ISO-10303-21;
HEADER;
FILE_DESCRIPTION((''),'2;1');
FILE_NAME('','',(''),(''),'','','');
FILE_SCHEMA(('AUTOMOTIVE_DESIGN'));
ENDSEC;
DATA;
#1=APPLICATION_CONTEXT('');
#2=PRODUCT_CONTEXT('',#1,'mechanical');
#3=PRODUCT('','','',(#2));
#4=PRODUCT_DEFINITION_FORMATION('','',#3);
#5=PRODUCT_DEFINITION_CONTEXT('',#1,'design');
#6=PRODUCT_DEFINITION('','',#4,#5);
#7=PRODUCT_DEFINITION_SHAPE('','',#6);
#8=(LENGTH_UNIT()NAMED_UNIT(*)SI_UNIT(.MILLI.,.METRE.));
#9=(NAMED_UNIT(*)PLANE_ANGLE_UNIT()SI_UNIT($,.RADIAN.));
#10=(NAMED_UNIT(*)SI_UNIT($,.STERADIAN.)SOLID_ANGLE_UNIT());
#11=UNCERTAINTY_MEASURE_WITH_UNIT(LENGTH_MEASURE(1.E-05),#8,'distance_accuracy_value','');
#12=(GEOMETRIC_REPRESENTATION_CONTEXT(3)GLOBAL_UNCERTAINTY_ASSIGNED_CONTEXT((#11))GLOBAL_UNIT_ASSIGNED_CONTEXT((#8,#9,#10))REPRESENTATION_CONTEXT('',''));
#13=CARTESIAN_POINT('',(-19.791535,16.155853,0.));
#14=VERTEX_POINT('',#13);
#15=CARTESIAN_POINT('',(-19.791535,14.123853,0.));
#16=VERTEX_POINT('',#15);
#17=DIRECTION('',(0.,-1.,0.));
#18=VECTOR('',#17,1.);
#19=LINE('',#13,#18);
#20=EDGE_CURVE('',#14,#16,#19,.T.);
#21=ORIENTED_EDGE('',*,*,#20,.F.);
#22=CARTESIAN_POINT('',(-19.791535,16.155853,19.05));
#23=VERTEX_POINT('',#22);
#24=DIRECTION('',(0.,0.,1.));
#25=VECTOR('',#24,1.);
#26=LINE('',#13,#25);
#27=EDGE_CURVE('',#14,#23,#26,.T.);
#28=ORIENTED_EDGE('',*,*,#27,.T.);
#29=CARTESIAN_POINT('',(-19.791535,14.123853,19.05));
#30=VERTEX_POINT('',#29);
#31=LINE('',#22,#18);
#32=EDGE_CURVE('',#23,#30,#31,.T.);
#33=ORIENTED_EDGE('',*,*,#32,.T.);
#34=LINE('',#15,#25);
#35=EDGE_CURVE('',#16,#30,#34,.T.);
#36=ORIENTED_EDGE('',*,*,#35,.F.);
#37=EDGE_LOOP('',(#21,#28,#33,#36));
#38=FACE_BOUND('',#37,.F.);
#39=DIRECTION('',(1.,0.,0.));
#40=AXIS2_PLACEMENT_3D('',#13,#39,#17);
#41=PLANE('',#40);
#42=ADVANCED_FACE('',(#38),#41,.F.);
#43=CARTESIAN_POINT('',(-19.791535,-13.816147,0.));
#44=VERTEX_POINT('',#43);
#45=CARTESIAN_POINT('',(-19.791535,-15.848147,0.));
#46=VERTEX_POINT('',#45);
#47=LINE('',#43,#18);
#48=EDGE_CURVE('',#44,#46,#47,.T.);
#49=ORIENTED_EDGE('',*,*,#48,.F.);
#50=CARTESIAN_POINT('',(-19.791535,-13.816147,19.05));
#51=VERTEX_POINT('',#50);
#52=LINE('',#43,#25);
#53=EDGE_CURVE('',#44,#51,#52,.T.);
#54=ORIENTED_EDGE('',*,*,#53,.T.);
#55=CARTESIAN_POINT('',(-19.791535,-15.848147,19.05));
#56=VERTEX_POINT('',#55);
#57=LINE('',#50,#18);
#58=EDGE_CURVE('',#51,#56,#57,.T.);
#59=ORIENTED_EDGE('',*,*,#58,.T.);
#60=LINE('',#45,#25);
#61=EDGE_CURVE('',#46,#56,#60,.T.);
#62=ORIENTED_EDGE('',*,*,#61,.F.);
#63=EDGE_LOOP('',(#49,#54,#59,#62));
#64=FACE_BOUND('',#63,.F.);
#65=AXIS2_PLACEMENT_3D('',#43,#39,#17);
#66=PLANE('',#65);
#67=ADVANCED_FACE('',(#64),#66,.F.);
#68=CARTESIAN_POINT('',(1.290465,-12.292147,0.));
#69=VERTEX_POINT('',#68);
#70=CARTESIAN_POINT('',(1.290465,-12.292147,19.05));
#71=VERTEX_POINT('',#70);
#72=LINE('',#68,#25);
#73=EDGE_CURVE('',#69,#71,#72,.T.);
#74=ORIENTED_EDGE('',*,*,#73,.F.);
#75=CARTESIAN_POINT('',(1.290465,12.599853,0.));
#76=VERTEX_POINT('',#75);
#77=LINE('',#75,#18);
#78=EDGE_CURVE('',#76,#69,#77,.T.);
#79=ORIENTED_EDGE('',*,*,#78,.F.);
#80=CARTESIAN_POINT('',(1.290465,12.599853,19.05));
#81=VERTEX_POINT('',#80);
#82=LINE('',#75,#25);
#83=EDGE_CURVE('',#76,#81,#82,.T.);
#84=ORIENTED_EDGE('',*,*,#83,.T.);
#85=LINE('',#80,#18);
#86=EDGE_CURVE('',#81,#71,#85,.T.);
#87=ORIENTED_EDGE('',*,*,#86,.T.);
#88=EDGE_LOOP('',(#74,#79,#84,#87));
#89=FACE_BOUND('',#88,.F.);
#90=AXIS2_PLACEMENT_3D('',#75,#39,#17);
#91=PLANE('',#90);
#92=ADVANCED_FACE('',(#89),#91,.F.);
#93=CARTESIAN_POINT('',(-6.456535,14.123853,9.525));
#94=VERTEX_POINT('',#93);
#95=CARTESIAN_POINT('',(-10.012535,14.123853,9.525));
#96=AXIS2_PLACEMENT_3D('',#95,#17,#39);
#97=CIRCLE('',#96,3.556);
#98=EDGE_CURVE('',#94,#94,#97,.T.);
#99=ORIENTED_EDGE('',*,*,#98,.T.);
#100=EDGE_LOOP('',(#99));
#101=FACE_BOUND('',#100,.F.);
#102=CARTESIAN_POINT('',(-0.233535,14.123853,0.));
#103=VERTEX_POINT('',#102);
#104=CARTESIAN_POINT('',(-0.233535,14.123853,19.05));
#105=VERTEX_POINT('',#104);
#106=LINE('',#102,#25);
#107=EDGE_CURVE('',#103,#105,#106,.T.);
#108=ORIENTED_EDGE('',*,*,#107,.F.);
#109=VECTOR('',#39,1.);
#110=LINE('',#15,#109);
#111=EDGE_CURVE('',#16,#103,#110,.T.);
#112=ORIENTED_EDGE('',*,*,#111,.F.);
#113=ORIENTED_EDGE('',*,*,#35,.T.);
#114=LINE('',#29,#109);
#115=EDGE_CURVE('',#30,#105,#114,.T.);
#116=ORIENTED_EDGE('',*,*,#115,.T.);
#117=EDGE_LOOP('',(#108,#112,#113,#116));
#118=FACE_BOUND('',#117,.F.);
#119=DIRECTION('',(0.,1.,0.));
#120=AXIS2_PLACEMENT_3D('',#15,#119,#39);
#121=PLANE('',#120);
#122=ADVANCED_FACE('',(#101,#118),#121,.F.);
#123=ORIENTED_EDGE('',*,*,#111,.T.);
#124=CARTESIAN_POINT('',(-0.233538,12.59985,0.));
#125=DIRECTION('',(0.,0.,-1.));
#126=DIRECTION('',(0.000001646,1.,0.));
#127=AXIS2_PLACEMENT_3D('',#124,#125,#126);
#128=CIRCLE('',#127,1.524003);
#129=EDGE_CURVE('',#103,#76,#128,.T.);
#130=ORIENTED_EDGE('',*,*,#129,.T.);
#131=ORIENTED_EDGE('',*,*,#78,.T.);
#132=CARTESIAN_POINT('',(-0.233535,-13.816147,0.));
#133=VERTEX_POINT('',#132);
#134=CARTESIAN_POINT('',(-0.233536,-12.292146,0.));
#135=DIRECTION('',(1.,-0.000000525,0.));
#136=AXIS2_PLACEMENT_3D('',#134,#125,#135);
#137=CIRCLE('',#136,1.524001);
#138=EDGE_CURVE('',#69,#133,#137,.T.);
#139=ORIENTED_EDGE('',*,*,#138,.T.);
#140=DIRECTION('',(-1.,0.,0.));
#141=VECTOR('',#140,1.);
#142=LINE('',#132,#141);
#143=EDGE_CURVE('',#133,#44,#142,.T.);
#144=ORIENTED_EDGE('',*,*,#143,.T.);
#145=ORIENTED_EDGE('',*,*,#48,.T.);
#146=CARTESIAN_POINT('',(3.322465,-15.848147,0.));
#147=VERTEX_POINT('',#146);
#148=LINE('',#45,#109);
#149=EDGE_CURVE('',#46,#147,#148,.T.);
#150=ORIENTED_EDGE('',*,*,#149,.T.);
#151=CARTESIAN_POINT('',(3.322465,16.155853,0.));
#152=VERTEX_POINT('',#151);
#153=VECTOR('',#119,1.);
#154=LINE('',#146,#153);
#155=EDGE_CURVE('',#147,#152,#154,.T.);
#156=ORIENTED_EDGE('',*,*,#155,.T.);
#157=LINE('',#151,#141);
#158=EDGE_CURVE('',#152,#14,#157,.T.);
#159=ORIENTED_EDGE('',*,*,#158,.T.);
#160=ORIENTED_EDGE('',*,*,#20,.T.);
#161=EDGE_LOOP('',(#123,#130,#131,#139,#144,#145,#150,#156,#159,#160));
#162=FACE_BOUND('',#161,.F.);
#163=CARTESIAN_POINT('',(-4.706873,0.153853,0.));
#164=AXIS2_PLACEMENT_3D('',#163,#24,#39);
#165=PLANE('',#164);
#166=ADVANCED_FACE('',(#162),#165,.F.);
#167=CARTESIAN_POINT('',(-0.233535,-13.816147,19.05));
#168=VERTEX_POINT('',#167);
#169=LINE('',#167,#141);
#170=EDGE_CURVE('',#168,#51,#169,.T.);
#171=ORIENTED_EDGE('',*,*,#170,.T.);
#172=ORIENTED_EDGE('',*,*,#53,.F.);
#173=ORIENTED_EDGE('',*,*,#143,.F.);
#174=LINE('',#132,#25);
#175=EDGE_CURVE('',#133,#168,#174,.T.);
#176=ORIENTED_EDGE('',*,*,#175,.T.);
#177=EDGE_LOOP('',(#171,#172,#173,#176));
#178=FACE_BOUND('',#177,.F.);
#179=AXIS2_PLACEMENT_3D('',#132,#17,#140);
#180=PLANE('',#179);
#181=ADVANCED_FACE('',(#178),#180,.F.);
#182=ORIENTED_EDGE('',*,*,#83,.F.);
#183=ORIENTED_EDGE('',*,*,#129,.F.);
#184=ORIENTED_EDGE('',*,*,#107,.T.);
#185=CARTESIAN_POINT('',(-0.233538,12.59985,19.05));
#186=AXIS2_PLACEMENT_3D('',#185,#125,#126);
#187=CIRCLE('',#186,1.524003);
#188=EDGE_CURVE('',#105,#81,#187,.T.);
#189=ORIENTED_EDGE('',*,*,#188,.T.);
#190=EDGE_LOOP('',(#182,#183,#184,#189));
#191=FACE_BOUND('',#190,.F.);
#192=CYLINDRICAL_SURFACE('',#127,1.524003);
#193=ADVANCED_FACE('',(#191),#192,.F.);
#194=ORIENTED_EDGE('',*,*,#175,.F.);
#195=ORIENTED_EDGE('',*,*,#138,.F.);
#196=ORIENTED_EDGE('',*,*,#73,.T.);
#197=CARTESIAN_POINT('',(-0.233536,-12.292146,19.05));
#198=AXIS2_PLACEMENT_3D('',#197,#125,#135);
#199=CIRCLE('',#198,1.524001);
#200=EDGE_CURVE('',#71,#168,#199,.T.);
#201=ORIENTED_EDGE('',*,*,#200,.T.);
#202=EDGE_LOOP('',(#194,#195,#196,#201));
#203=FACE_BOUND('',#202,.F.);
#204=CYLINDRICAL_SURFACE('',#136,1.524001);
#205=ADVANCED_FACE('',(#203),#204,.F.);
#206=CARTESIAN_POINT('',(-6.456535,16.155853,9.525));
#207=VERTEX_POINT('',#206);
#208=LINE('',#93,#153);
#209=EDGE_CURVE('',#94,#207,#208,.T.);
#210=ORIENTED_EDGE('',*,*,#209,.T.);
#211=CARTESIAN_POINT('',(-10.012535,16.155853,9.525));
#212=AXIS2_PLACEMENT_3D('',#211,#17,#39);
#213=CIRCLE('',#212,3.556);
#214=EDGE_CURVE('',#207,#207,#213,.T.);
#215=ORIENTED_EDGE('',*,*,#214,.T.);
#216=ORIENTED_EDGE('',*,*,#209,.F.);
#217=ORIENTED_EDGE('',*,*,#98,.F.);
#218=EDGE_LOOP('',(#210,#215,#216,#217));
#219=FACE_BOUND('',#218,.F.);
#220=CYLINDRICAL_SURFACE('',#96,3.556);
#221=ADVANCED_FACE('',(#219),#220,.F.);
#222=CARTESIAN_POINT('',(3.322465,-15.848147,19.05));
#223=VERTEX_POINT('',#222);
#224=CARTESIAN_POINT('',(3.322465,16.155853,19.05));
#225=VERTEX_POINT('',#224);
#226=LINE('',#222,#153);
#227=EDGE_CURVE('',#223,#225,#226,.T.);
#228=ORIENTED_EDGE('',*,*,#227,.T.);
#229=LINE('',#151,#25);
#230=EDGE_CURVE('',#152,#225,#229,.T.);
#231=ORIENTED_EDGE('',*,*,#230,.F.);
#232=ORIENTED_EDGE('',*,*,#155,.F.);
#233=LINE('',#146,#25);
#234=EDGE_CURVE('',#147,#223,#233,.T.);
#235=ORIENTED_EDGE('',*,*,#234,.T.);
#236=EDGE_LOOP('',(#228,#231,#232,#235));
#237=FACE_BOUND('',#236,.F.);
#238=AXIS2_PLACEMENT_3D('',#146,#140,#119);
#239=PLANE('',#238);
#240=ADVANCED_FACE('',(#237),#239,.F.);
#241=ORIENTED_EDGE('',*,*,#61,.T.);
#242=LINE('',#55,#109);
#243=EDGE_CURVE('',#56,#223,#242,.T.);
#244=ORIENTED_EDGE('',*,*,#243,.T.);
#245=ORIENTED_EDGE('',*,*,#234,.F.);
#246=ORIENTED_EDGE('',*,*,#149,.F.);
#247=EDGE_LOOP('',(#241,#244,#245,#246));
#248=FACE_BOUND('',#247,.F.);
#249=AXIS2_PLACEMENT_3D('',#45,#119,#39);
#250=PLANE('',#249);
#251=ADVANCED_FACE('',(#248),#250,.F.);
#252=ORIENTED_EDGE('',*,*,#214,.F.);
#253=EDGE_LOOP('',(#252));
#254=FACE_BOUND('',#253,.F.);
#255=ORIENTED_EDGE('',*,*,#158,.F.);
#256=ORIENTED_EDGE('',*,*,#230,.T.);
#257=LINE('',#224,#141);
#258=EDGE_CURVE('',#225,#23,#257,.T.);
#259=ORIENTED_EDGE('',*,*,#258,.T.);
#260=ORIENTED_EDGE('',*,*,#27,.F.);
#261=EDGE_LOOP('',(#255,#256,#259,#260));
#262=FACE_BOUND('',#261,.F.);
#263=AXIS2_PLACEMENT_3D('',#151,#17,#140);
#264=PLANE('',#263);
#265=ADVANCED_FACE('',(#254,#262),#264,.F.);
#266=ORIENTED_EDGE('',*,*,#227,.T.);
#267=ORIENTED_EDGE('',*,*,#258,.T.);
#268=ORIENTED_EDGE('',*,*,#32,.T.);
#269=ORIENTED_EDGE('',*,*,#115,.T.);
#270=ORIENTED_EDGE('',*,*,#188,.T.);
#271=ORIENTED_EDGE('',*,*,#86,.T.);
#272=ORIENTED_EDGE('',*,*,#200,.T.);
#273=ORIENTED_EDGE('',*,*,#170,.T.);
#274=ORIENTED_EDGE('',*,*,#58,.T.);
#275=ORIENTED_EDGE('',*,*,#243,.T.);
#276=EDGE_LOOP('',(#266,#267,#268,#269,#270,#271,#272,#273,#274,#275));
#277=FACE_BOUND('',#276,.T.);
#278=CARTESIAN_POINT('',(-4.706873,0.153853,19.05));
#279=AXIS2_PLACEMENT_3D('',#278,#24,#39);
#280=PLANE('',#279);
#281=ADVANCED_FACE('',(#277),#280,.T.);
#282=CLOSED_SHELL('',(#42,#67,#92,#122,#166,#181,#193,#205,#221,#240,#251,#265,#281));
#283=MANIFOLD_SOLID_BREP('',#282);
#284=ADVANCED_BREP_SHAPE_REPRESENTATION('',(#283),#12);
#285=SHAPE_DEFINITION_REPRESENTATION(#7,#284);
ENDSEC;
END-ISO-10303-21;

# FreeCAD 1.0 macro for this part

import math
import FreeCAD as App
import Part
import Sketcher
Q = App.Units.Quantity

doc = App.newDocument("Part")
body = doc.addObject("PartDesign::Body", "Body")

sketch1 = doc.addObject("Sketcher::SketchObject", "Sketch")
body.addObject(sketch1)
sketch1.AttachmentSupport = (doc.XY_Plane, [""])
sketch1.MapMode = "FlatFace"
sketch1.addGeometry(Part.LineSegment(App.Vector(-19.8, 16.2, 0), App.Vector(-19.8, 14.1, 0)), False)
sketch1.addGeometry(Part.LineSegment(App.Vector(-19.8, 14.1, 0), App.Vector(-0.2, 14.1, 0)), False)
sketch1.addGeometry(Part.ArcOfCircle(Part.Circle(App.Vector(-0.2, 12.6, 0), App.Vector(0, 0, 1), 1.5), math.radians(0), math.radians(90)), False)
sketch1.addGeometry(Part.LineSegment(App.Vector(1.3, 12.6, 0), App.Vector(1.3, -12.3, 0)), False)
sketch1.addGeometry(Part.ArcOfCircle(Part.Circle(App.Vector(-0.2, -12.3, 0), App.Vector(0, 0, 1), 1.5), math.radians(-90), math.radians(0)), False)
sketch1.addGeometry(Part.LineSegment(App.Vector(-0.2, -13.8, 0), App.Vector(-19.8, -13.8, 0)), False)
sketch1.addGeometry(Part.LineSegment(App.Vector(-19.8, -13.8, 0), App.Vector(-19.8, -15.8, 0)), False)
sketch1.addGeometry(Part.LineSegment(App.Vector(-19.8, -15.8, 0), App.Vector(3.3, -15.8, 0)), False)
sketch1.addGeometry(Part.LineSegment(App.Vector(3.3, -15.8, 0), App.Vector(3.3, 16.2, 0)), False)
sketch1.addGeometry(Part.LineSegment(App.Vector(3.3, 16.2, 0), App.Vector(-19.8, 16.2, 0)), False)
sketch1.addConstraint(Sketcher.Constraint("Coincident", 0, 2, 1, 1))
sketch1.addConstraint(Sketcher.Constraint("Tangent", 1, 2, 2, 2))
sketch1.addConstraint(Sketcher.Constraint("Tangent", 2, 1, 3, 1))
sketch1.addConstraint(Sketcher.Constraint("Tangent", 3, 2, 4, 2))
sketch1.addConstraint(Sketcher.Constraint("Tangent", 4, 1, 5, 1))
sketch1.addConstraint(Sketcher.Constraint("Coincident", 5, 2, 6, 1))
sketch1.addConstraint(Sketcher.Constraint("Coincident", 6, 2, 7, 1))
sketch1.addConstraint(Sketcher.Constraint("Coincident", 7, 2, 8, 1))
sketch1.addConstraint(Sketcher.Constraint("Coincident", 8, 2, 9, 1))
sketch1.addConstraint(Sketcher.Constraint("Coincident", 9, 2, 0, 1))
sketch1.addConstraint(Sketcher.Constraint("Vertical", 0))
sketch1.addConstraint(Sketcher.Constraint("Horizontal", 1))
sketch1.addConstraint(Sketcher.Constraint("Vertical", 3))
sketch1.addConstraint(Sketcher.Constraint("Horizontal", 5))
sketch1.addConstraint(Sketcher.Constraint("Vertical", 6))
sketch1.addConstraint(Sketcher.Constraint("Horizontal", 7))
sketch1.addConstraint(Sketcher.Constraint("Vertical", 8))
sketch1.addConstraint(Sketcher.Constraint("Horizontal", 9))
sketch1.addConstraint(Sketcher.Constraint("Equal", 2, 4))
sketch1.addConstraint(Sketcher.Constraint("Vertical", 0, 2, 5, 2))
sketch1.addConstraint(Sketcher.Constraint("Equal", 0, 6))
sketch1.addConstraint(Sketcher.Constraint("Radius", 2, Q("0.0600001 in")))
sketch1.addConstraint(Sketcher.Constraint("DistanceX", 1, 1, 1, 2, Q("0.77 in")))
sketch1.addConstraint(Sketcher.Constraint("DistanceX", 7, 1, 7, 2, Q("0.91 in")))
sketch1.addConstraint(Sketcher.Constraint("DistanceY", 0, 2, 0, 1, Q("0.08 in")))
sketch1.addConstraint(Sketcher.Constraint("DistanceY", 3, 2, 3, 1, Q("0.98 in")))
sketch1.addConstraint(Sketcher.Constraint("DistanceY", -1, 1, 2, 3, Q("12.59985 mm")))
sketch1.addConstraint(Sketcher.Constraint("DistanceX", 2, 3, -1, 1, Q("0.233538 mm")))
pad1 = doc.addObject("PartDesign::Pad", "Pad")
body.addObject(pad1)
pad1.Profile = sketch1
pad1.Length = Q("0.75 in")

sketch2 = doc.addObject("Sketcher::SketchObject", "Sketch001")
body.addObject(sketch2)
sketch2.AttachmentSupport = (doc.XZ_Plane, [""])
sketch2.MapMode = "FlatFace"
sketch2.AttachmentOffset = App.Placement(App.Vector(0, 0, -14.123853), App.Rotation())
sketch2.addGeometry(Part.Circle(App.Vector(-10, 9.5, 0), App.Vector(0, 0, 1), 3.6), False)
sketch2.addConstraint(Sketcher.Constraint("Diameter", 0, Q("0.28 in")))
sketch2.addConstraint(Sketcher.Constraint("DistanceY", -1, 1, 0, 3, Q("0.375 in")))
sketch2.addConstraint(Sketcher.Constraint("DistanceX", 0, 3, -1, 1, Q("10.012535 mm")))
pocket1 = doc.addObject("PartDesign::Pocket", "Pocket")
body.addObject(pocket1)
pocket1.Profile = sketch2
pocket1.Type = "ThroughAll"

doc.recompute()
